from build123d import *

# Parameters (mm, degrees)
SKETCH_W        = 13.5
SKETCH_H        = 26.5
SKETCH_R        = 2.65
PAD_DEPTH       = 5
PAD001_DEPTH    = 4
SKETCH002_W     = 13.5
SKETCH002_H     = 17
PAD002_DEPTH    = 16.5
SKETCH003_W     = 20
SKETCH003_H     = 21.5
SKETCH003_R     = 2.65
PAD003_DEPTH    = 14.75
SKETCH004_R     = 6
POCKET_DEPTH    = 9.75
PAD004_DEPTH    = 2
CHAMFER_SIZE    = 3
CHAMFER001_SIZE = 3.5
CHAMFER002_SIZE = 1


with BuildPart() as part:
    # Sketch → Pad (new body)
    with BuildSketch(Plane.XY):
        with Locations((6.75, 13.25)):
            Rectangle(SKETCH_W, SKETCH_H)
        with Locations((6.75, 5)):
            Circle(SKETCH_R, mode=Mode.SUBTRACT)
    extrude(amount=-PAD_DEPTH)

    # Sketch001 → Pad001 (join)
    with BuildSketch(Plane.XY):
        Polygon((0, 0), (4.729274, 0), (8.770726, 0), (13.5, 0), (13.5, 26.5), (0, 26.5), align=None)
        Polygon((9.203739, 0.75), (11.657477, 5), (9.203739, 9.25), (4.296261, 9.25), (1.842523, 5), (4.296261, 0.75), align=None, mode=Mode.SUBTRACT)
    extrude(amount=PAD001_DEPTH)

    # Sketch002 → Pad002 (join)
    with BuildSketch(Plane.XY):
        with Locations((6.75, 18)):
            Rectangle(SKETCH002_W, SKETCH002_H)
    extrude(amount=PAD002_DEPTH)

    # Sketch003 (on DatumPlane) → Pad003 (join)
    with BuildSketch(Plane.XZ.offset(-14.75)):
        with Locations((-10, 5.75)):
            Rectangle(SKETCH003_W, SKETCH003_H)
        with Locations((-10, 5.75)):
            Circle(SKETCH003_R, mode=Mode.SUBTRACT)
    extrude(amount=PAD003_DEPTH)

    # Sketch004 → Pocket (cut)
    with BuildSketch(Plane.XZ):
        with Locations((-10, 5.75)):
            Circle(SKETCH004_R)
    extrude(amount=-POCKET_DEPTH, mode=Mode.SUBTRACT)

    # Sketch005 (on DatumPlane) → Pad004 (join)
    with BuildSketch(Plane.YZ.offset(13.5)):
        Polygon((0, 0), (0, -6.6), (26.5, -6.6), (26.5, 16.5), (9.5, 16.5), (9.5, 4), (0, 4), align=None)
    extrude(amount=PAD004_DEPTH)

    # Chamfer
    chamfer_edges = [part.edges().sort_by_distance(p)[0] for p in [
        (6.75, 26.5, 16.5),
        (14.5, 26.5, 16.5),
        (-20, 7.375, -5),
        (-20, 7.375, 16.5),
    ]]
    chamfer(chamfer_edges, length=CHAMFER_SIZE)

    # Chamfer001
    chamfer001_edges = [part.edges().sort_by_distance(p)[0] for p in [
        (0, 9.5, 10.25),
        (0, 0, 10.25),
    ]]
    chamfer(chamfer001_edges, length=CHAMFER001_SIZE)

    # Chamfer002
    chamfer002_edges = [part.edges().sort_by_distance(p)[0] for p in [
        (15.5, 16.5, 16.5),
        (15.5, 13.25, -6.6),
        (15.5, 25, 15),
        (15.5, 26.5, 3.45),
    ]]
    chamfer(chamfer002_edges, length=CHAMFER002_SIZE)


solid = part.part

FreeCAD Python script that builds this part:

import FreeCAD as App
import Part
import Sketcher
from FreeCAD import Vector
Q = App.Units.Quantity


def edges_at(feature, points):
    """Names of the edges that pass closest to the given points."""
    edges = feature.Shape.Edges
    near = lambda p: min(range(len(edges)), key=lambda i: edges[i].distToShape(Part.Vertex(*p))[0])
    return sorted({f"Edge{near(p) + 1}" for p in points})


def add_polygon(sketch, points):
    """Adds a closed chain of lines whose ends are joined by coincident constraints."""
    first, n = sketch.GeometryCount, len(points)
    for a, b in zip(points, points[1:] + points[:1]):
        sketch.addGeometry(Part.LineSegment(App.Vector(*a, 0), App.Vector(*b, 0)), False)
    for i in range(n):
        sketch.addConstraint(Sketcher.Constraint("Coincident", first + i, 2, first + (i + 1) % n, 1))

doc = App.newDocument("Part")
body = doc.addObject("PartDesign::Body", "Body")

sketch1 = body.newObject("Sketcher::SketchObject", "Sketch")
sketch1.AttachmentSupport = (doc.getObject("XY_Plane"), [""])
sketch1.MapMode = "FlatFace"
add_polygon(sketch1, [(0, 26.5), (0, 0), (13.5, 0), (13.5, 26.5)])
sketch1.addGeometry(Part.Circle(Vector(6.8, 5, 0), Vector(0, 0, 1), 2.6), False)
sketch1.addConstraint([
    Sketcher.Constraint("Vertical", 0),
    Sketcher.Constraint("Horizontal", 1),
    Sketcher.Constraint("Vertical", 2),
    Sketcher.Constraint("Horizontal", 3),
    Sketcher.Constraint("Coincident", 0, 2, -1, 1),
    Sketcher.Constraint("Diameter", 4, Q("5.3 mm")),
    Sketcher.Constraint("DistanceX", 1, 1, 1, 2, Q("13.5 mm")),
    Sketcher.Constraint("DistanceY", 0, 2, 0, 1, Q("26.5 mm")),
    Sketcher.Constraint("DistanceY", -1, 1, 4, 3, Q("5 mm")),
    Sketcher.Constraint("DistanceX", -1, 1, 4, 3, Q("6.75 mm")),
])
pad1 = body.newObject("PartDesign::Pad", "Pad")
pad1.Profile = sketch1
pad1.Length = 5
pad1.Reversed = True

sketch2 = body.newObject("Sketcher::SketchObject", "Sketch001")
sketch2.AttachmentSupport = (doc.getObject("XY_Plane"), [""])
sketch2.MapMode = "FlatFace"
add_polygon(sketch2, [(0, 0), (13.5, 0), (13.5, 26.5), (0, 26.5)])
add_polygon(sketch2, [(11.7, 5), (9.2, 0.8), (4.3, 0.8), (1.8, 5), (4.3, 9.2), (9.2, 9.2)])
sketch2.addConstraint([
    Sketcher.Constraint("Horizontal", 0),
    Sketcher.Constraint("Vertical", 1),
    Sketcher.Constraint("Horizontal", 2),
    Sketcher.Constraint("Vertical", 3),
    Sketcher.Constraint("Horizontal", 5),
    Sketcher.Constraint("Horizontal", 8),
    Sketcher.Constraint("Coincident", 3, 2, -1, 1),
    Sketcher.Constraint("Parallel", 4, 7),
    Sketcher.Constraint("Parallel", 6, 9),
    Sketcher.Constraint("Horizontal", 6, 2, 9, 2),
    Sketcher.Constraint("Vertical", 5, 2, 7, 2),
    Sketcher.Constraint("Vertical", 4, 2, 8, 2),
    Sketcher.Constraint("Angle", 4, Q("-119.999993 deg")),
    Sketcher.Constraint("DistanceX", 0, 1, 0, 2, Q("13.5 mm")),
    Sketcher.Constraint("DistanceY", 1, 1, 1, 2, Q("26.5 mm")),
    Sketcher.Constraint("DistanceY", -1, 1, 6, 2, Q("5 mm")),
    Sketcher.Constraint("DistanceY", 5, 2, 7, 2, Q("8.5 mm")),
    Sketcher.Constraint("DistanceX", 5, 2, 5, 1, Q("4.907478 mm")),
    Sketcher.Constraint("DistanceX", -1, 1, 4, 2, Q("9.203739 mm")),
])
pad2 = body.newObject("PartDesign::Pad", "Pad001")
pad2.Profile = sketch2
pad2.Length = 4

sketch3 = body.newObject("Sketcher::SketchObject", "Sketch002")
sketch3.AttachmentSupport = (doc.getObject("XY_Plane"), [""])
sketch3.MapMode = "FlatFace"
add_polygon(sketch3, [(0, 26), (0, 10), (14, 10), (14, 26)])
sketch3.addConstraint([
    Sketcher.Constraint("Vertical", 0),
    Sketcher.Constraint("Horizontal", 1),
    Sketcher.Constraint("Vertical", 2),
    Sketcher.Constraint("Horizontal", 3),
    Sketcher.Constraint("PointOnObject", 0, 2, -2),
    Sketcher.Constraint("DistanceY", 0, 2, 0, 1, Q("17 mm")),
    Sketcher.Constraint("DistanceX", 1, 1, 1, 2, Q("13.5 mm")),
    Sketcher.Constraint("DistanceY", -1, 1, 0, 2, Q("9.5 mm")),
])
pad3 = body.newObject("PartDesign::Pad", "Pad002")
pad3.Profile = sketch3
pad3.Length = 16.5

sketch4 = body.newObject("Sketcher::SketchObject", "Sketch003")
sketch4.AttachmentSupport = (doc.getObject("XZ_Plane"), [""])
sketch4.MapMode = "FlatFace"
sketch4.AttachmentOffset = App.Placement(Vector(0, 0, -14.75), App.Rotation())
add_polygon(sketch4, [(-20, 16.5), (-20, -5), (0, -5), (0, 16.5)])
sketch4.addGeometry(Part.Circle(Vector(-10, 5.8, 0), Vector(0, 0, 1), 2.6), False)
sketch4.addConstraint([
    Sketcher.Constraint("Vertical", 0),
    Sketcher.Constraint("Horizontal", 1),
    Sketcher.Constraint("Vertical", 2),
    Sketcher.Constraint("Horizontal", 3),
    Sketcher.Constraint("PointOnObject", 1, 2, -2),
    Sketcher.Constraint("Diameter", 4, Q("5.3 mm")),
    Sketcher.Constraint("DistanceX", 1, 1, 1, 2, Q("20 mm")),
    Sketcher.Constraint("DistanceY", 0, 2, 0, 1, Q("21.5 mm")),
    Sketcher.Constraint("DistanceX", 4, 3, -1, 1, Q("10 mm")),
    Sketcher.Constraint("DistanceY", 0, 2, -1, 1, Q("5 mm")),
    Sketcher.Constraint("DistanceY", -1, 1, 4, 3, Q("5.75 mm")),
])
pad4 = body.newObject("PartDesign::Pad", "Pad003")
pad4.Profile = sketch4
pad4.Length = 14.75

sketch5 = body.newObject("Sketcher::SketchObject", "Sketch004")
sketch5.AttachmentSupport = (doc.getObject("XZ_Plane"), [""])
sketch5.MapMode = "FlatFace"
sketch5.addGeometry(Part.Circle(Vector(-10, 6, 0), Vector(0, 0, 1), 6), False)
sketch5.addConstraint([
    Sketcher.Constraint("Diameter", 0, Q("12 mm")),
    Sketcher.Constraint("DistanceX", 0, 3, -1, 1, Q("10 mm")),
    Sketcher.Constraint("DistanceY", -1, 1, 0, 3, Q("5.75 mm")),
])
pocket1 = body.newObject("PartDesign::Pocket", "Pocket")
pocket1.Profile = sketch5
pocket1.Length = 9.75

sketch6 = body.newObject("Sketcher::SketchObject", "Sketch005")
sketch6.AttachmentSupport = (doc.getObject("YZ_Plane"), [""])
sketch6.MapMode = "FlatFace"
sketch6.AttachmentOffset = App.Placement(Vector(0, 0, 13.5), App.Rotation())
add_polygon(sketch6, [(0, -7), (26, -7), (26, 16), (10, 16), (10, 4), (0, 4)])
sketch6.addConstraint([
    Sketcher.Constraint("Horizontal", 0),
    Sketcher.Constraint("Vertical", 1),
    Sketcher.Constraint("Horizontal", 2),
    Sketcher.Constraint("Vertical", 3),
    Sketcher.Constraint("Horizontal", 4),
    Sketcher.Constraint("Vertical", 5),
    Sketcher.Constraint("PointOnObject", 4, 2, -2),
    Sketcher.Constraint("DistanceX", 2, 2, 2, 1, Q("17 mm")),
    Sketcher.Constraint("DistanceX", 0, 1, 0, 2, Q("26.5 mm")),
    Sketcher.Constraint("DistanceY", 1, 1, 1, 2, Q("23.1 mm")),
    Sketcher.Constraint("DistanceY", 3, 2, 3, 1, Q("12.5 mm")),
    Sketcher.Constraint("DistanceY", -1, 1, 3, 2, Q("4 mm")),
])
pad5 = body.newObject("PartDesign::Pad", "Pad004")
pad5.Profile = sketch6
pad5.Length = 2
doc.recompute()

chamfer = body.newObject("PartDesign::Chamfer", "Chamfer")
chamfer.Base = (pad5, edges_at(pad5, [
    (7.75, 26.5, 16.5),
    (7.75, 26.5, 16.5),
    (-20, 7.375, -5),
    (-20, 7.375, 16.5),
]))
chamfer.Size = 3
doc.recompute()

chamfer2 = body.newObject("PartDesign::Chamfer", "Chamfer001")
chamfer2.Base = (chamfer, edges_at(chamfer, [(0, 9.5, 10.25), (0, 0, 10.25)]))
chamfer2.Size = 3.5
doc.recompute()

chamfer3 = body.newObject("PartDesign::Chamfer", "Chamfer002")
chamfer3.Base = (chamfer2, edges_at(chamfer2, [
    (15.5, 16.5, 16.5),
    (15.5, 13.25, -6.6),
    (15.5, 25, 15),
    (15.5, 26.5, 3.45),
]))
chamfer3.Size = 1

doc.recompute()
